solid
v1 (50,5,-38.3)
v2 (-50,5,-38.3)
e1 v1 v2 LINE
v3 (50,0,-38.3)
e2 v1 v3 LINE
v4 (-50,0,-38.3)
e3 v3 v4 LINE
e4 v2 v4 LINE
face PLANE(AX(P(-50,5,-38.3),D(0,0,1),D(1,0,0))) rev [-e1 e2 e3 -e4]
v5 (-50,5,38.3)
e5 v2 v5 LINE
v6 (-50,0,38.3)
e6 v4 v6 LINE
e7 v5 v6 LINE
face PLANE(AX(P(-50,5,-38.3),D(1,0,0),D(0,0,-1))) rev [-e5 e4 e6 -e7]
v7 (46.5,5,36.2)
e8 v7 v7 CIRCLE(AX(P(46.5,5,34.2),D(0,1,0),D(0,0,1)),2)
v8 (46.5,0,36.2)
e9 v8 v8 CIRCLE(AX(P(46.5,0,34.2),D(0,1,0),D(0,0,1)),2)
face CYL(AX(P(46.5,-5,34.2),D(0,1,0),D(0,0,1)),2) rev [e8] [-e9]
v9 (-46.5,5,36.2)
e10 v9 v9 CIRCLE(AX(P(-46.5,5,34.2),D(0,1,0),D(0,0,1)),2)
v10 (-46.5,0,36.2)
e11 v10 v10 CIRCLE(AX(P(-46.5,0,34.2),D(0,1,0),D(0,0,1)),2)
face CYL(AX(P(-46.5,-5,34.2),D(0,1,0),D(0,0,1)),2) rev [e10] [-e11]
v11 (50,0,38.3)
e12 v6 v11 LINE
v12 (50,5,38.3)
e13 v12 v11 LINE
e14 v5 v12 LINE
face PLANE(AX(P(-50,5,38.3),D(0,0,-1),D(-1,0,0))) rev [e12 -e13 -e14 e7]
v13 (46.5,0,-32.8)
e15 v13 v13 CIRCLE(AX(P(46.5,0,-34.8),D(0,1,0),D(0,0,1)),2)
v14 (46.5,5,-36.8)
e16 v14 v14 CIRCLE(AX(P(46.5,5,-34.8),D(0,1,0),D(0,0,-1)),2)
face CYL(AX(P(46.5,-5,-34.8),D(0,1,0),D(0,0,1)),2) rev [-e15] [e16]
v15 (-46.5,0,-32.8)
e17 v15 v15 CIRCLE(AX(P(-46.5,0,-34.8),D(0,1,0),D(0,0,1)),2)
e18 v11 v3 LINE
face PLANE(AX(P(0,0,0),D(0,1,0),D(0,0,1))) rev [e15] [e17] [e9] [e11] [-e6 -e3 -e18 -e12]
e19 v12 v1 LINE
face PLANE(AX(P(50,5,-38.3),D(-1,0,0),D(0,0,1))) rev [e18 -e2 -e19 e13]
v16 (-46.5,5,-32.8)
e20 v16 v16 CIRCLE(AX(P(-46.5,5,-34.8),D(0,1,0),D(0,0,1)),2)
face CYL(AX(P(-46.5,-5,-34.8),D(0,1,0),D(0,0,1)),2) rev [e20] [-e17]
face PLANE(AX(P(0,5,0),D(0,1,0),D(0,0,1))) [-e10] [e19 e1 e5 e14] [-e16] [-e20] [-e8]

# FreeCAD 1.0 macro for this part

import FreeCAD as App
import Part
import Sketcher
from FreeCAD import Vector
Q = App.Units.Quantity


def add_polygon(sketch, points):
    """Adds a closed chain of lines whose ends are joined by coincident constraints."""
    first, n = sketch.GeometryCount, len(points)
    for a, b in zip(points, points[1:] + points[:1]):
        sketch.addGeometry(Part.LineSegment(App.Vector(*a, 0), App.Vector(*b, 0)), False)
    for i in range(n):
        sketch.addConstraint(Sketcher.Constraint("Coincident", first + i, 2, first + (i + 1) % n, 1))

doc = App.newDocument("Part")
body = doc.addObject("PartDesign::Body", "Body")

sketch1 = body.newObject("Sketcher::SketchObject", "Sketch")
sketch1.AttachmentSupport = (doc.getObject("XZ_Plane"), [""])
sketch1.MapMode = "FlatFace"
add_polygon(sketch1, [(-50, -38.3), (-50, 38.3), (50, 38.3), (50, -38.3)])
sketch1.addConstraint([
    Sketcher.Constraint("Vertical", 0),
    Sketcher.Constraint("Horizontal", 1),
    Sketcher.Constraint("Vertical", 2),
    Sketcher.Constraint("Horizontal", 3),
    Sketcher.Constraint("Symmetric", 0, 2, 2, 2, -1, 1),
    Sketcher.Constraint("DistanceX", 1, 1, 1, 2, Q("100 mm")),
    Sketcher.Constraint("DistanceY", 0, 1, 0, 2, Q("76.6 mm")),
])
pad1 = body.newObject("PartDesign::Pad", "Pad")
pad1.Profile = sketch1
pad1.Length = 5
pad1.Reversed = True

sketch2 = body.newObject("Sketcher::SketchObject", "Sketch001")
sketch2.AttachmentSupport = (doc.getObject("XZ_Plane"), [""])
sketch2.MapMode = "FlatFace"
sketch2.AttachmentOffset = App.Placement(Vector(0, 0, -5), App.Rotation())
sketch2.addGeometry([
    Part.Circle(Vector(-46.5, -34.8, 0), Vector(0, 0, 1), 2),
    Part.Circle(Vector(46.5, -34.8, 0), Vector(0, 0, 1), 2),
], False)
sketch2.addConstraint([
    Sketcher.Constraint("Equal", 0, 1),
    Sketcher.Constraint("Symmetric", 0, 3, 1, 3, -2),
    Sketcher.Constraint("Diameter", 0, Q("4 mm")),
    Sketcher.Constraint("DistanceX", 0, 3, 1, 3, Q("93 mm")),
    Sketcher.Constraint("DistanceY", 0, 3, -1, 1, Q("34.8 mm")),
])
pocket1 = body.newObject("PartDesign::Pocket", "Pocket")
pocket1.Profile = sketch2
pocket1.Length = 10
pocket1.Reversed = True

sketch3 = body.newObject("Sketcher::SketchObject", "Sketch002")
sketch3.AttachmentSupport = (doc.getObject("XZ_Plane"), [""])
sketch3.MapMode = "FlatFace"
sketch3.AttachmentOffset = App.Placement(Vector(0, 0, -5), App.Rotation())
sketch3.addGeometry([
    Part.Circle(Vector(-46.5, 34.2, 0), Vector(0, 0, 1), 2),
    Part.Circle(Vector(46.5, 34.2, 0), Vector(0, 0, 1), 2),
], False)
sketch3.addConstraint([
    Sketcher.Constraint("Equal", 0, 1),
    Sketcher.Constraint("Symmetric", 0, 3, 1, 3, -2),
    Sketcher.Constraint("Diameter", 0, Q("4 mm")),
    Sketcher.Constraint("DistanceX", 0, 3, 1, 3, Q("93 mm")),
    Sketcher.Constraint("DistanceY", -1, 1, 0, 3, Q("34.2 mm")),
])
pocket2 = body.newObject("PartDesign::Pocket", "Pocket001")
pocket2.Profile = sketch3
pocket2.Length = 10
pocket2.Reversed = True

doc.recompute()
